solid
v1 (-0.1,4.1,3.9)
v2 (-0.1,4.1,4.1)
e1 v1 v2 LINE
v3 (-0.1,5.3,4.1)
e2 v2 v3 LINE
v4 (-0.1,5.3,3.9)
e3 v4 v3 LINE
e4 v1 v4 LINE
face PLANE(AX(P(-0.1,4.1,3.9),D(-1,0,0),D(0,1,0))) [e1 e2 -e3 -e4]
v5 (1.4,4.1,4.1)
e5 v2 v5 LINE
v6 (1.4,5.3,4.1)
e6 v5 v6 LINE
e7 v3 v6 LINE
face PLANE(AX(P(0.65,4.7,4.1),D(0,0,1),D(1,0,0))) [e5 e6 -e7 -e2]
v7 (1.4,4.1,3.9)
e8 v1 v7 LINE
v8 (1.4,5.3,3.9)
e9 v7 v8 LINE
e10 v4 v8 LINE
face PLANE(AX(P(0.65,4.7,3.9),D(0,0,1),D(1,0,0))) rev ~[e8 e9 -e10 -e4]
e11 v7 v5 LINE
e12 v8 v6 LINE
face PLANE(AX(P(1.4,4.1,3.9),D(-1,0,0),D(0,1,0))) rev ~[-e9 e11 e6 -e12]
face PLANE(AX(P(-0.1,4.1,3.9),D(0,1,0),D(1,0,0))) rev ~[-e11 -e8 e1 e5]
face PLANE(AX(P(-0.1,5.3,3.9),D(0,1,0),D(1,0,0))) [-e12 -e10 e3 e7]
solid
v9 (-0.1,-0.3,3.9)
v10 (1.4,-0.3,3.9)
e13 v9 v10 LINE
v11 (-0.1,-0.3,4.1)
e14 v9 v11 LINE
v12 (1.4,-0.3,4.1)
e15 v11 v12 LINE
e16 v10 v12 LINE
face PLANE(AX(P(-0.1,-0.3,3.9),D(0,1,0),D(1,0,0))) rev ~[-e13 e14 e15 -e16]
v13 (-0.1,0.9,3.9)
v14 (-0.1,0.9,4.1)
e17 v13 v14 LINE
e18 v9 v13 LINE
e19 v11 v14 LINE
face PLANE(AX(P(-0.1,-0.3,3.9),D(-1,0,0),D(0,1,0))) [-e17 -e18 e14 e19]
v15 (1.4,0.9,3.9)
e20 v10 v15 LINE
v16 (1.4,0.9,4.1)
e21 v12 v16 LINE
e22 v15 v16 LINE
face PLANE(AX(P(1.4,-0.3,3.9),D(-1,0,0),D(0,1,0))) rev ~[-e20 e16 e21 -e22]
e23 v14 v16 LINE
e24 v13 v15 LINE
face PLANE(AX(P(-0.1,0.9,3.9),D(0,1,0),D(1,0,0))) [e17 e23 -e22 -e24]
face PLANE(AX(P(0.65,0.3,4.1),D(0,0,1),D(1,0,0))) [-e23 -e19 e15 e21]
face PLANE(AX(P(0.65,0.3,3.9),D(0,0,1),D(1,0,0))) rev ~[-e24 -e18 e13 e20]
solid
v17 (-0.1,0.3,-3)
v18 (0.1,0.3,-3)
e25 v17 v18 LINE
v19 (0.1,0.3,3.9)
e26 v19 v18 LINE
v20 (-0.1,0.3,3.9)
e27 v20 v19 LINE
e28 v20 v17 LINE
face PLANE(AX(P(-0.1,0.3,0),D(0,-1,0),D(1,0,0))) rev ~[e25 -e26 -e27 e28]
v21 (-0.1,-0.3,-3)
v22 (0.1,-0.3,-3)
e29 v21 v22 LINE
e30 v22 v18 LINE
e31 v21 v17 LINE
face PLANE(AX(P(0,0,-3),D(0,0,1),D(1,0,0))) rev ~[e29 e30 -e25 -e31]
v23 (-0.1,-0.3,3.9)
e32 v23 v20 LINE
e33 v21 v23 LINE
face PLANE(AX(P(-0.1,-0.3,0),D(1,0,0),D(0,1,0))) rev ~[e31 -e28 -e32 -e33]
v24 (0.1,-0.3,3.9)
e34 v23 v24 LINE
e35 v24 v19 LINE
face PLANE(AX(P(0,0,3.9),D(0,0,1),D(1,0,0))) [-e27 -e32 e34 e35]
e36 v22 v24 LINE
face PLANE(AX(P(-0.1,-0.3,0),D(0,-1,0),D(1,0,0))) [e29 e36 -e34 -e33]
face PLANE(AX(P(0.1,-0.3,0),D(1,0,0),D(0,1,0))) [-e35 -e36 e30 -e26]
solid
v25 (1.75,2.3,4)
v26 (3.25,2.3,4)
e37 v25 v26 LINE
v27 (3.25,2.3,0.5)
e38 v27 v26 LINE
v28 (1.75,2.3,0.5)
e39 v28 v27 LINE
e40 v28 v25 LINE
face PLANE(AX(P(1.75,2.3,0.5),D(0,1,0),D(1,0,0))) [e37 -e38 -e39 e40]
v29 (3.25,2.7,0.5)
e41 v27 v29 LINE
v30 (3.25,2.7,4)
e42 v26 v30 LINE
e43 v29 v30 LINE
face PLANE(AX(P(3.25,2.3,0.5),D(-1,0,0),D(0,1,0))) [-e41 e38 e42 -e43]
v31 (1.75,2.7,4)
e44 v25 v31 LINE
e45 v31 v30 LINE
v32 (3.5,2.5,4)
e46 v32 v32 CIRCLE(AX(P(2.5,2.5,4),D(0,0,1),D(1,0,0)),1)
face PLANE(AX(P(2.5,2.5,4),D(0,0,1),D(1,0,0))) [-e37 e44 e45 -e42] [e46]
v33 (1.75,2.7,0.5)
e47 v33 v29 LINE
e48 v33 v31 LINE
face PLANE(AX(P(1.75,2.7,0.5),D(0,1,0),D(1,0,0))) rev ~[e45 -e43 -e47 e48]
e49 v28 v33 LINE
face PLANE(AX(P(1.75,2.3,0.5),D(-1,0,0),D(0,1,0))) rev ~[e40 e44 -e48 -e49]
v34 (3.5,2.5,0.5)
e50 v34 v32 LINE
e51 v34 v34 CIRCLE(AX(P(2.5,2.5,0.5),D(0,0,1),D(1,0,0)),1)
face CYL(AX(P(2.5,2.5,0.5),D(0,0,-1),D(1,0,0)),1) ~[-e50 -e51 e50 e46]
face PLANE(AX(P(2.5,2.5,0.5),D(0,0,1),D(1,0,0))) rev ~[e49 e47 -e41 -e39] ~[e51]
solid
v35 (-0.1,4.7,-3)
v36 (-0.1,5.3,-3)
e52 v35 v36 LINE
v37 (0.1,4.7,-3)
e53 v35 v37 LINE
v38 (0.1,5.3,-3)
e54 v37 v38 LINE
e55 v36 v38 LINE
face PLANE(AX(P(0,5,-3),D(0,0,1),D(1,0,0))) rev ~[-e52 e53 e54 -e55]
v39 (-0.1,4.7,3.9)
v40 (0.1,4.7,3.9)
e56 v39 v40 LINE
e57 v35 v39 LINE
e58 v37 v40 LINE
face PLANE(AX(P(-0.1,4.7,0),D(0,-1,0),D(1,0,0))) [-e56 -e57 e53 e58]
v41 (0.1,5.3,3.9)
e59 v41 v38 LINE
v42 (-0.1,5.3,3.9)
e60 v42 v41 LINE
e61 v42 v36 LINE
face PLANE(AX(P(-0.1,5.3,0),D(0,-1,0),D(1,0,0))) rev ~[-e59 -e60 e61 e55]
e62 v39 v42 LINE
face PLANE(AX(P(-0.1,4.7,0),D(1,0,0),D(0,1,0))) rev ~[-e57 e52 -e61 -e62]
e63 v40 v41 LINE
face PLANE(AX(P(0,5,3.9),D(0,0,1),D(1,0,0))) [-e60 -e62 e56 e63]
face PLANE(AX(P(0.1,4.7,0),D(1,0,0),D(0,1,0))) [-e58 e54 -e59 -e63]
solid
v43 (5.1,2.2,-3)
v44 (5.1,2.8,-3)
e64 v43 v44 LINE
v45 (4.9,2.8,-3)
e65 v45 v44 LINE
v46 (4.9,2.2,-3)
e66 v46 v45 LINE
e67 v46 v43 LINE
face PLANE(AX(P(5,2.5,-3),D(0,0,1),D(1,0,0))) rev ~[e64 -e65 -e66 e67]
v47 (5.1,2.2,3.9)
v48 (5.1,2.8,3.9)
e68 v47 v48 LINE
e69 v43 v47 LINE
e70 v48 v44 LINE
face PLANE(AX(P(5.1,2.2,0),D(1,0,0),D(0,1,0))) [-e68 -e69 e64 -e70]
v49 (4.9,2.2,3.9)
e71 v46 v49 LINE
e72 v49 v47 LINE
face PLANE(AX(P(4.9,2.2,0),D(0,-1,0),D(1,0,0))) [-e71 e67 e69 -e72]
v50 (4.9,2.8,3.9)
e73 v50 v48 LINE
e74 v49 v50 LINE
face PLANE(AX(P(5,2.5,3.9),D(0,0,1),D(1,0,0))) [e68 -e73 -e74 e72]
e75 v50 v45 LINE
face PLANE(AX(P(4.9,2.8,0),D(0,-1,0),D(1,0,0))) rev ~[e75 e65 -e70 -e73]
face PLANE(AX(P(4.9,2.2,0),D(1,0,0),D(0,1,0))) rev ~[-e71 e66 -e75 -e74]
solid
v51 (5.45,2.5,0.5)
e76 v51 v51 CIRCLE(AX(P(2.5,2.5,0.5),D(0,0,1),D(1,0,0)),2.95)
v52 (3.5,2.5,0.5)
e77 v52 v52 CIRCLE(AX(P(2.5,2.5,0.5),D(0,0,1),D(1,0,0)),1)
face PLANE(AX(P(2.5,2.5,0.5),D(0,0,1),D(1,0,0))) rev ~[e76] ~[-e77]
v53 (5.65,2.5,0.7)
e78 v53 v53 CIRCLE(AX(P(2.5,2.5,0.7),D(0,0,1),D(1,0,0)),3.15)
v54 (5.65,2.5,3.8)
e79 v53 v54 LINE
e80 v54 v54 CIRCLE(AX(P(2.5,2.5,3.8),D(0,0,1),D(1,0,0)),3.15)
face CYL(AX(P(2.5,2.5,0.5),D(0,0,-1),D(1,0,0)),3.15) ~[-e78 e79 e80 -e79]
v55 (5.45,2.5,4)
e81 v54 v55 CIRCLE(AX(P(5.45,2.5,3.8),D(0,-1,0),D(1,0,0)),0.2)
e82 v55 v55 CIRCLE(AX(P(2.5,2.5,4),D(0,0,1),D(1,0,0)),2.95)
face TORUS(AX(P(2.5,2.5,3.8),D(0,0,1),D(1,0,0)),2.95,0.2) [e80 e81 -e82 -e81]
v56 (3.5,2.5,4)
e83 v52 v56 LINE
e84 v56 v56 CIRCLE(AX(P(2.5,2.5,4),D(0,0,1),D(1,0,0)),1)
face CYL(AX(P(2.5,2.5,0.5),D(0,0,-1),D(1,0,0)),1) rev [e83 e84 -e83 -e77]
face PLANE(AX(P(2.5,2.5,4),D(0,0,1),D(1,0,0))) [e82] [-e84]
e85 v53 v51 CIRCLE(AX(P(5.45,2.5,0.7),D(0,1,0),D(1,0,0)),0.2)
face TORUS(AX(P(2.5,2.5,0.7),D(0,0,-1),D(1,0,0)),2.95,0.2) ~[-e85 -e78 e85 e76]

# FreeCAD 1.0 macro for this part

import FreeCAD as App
import Part
import Sketcher

V = App.Vector
Q = App.Units.Quantity


def edges_at(feature, points):
    """Names of the edges that pass closest to the given points."""
    edges = feature.Shape.Edges
    near = lambda p: min(range(len(edges)), key=lambda i: edges[i].distToShape(Part.Vertex(*p))[0])
    return sorted({f"Edge{near(p) + 1}" for p in points})


def add_polygon(sketch, points):
    """Adds a closed chain of lines whose ends are joined by coincident constraints."""
    first, n = sketch.GeometryCount, len(points)
    for a, b in zip(points, points[1:] + points[:1]):
        sketch.addGeometry(Part.LineSegment(App.Vector(*a, 0), App.Vector(*b, 0)), False)
    for i in range(n):
        sketch.addConstraint(Sketcher.Constraint("Coincident", first + i, 2, first + (i + 1) % n, 1))

doc = App.newDocument("Part")
body = doc.addObject("PartDesign::Body", "Body")
body.AllowCompound = True

# Sketch on XY plane
sketch1 = body.newObject("Sketcher::SketchObject", "Sketch")
sketch1.AttachmentSupport = (doc.getObject("XY_Plane"), [""])
sketch1.MapMode = "FlatFace"
add_polygon(sketch1, [(-0.1, 5.3), (-0.1, 4.7), (0.1, 4.7), (0.1, 5.3)])  # lines 0-3
add_polygon(sketch1, [(4.9, 2.8), (4.9, 2.2), (5.1, 2.2), (5.1, 2.8)])  # lines 4-7
add_polygon(sketch1, [(-0.1, 0.3), (-0.1, -0.3), (0.1, -0.3), (0.1, 0.3)])  # lines 8-11
sketch1.addConstraint(Sketcher.Constraint("Vertical", 0))
sketch1.addConstraint(Sketcher.Constraint("Horizontal", 1))
sketch1.addConstraint(Sketcher.Constraint("Vertical", 2))
sketch1.addConstraint(Sketcher.Constraint("Horizontal", 3))
sketch1.addConstraint(Sketcher.Constraint("Vertical", 4))
sketch1.addConstraint(Sketcher.Constraint("Horizontal", 5))
sketch1.addConstraint(Sketcher.Constraint("Vertical", 6))
sketch1.addConstraint(Sketcher.Constraint("Horizontal", 7))
sketch1.addConstraint(Sketcher.Constraint("Vertical", 8))
sketch1.addConstraint(Sketcher.Constraint("Horizontal", 9))
sketch1.addConstraint(Sketcher.Constraint("Vertical", 10))
sketch1.addConstraint(Sketcher.Constraint("Horizontal", 11))
sketch1.addConstraint(Sketcher.Constraint("Symmetric", 8, 2, 10, 2, -1, 1))
sketch1.addConstraint(Sketcher.Constraint("Vertical", 3, 2, 8, 2))
sketch1.addConstraint(Sketcher.Constraint("Vertical", 2, 2, 9, 2))
sketch1.addConstraint(Sketcher.Constraint("Equal", 3, 5))
sketch1.addConstraint(Sketcher.Constraint("Equal", 2, 4))
sketch1.addConstraint(Sketcher.Constraint("Equal", 6, 8))
sketch1.addConstraint(Sketcher.Constraint("DistanceX", 1, 1, 1, 2, Q("0.2 mm")))
sketch1.addConstraint(Sketcher.Constraint("DistanceY", 0, 2, 0, 1, Q("0.6 mm")))
sketch1.addConstraint(Sketcher.Constraint("DistanceX", 0, 2, 4, 2, Q("5 mm")))
sketch1.addConstraint(Sketcher.Constraint("DistanceY", 8, 2, 0, 2, Q("5 mm")))
sketch1.addConstraint(Sketcher.Constraint("DistanceY", -1, 1, 4, 2, Q("2.2 mm")))
pad1 = body.newObject("PartDesign::Pad", "Pad")
pad1.Profile = sketch1
pad1.Type = "TwoLengths"
pad1.Length = 3.9
pad1.Length2 = 3
body2 = doc.addObject("PartDesign::Body", "Body001")

# Sketch on XY plane
sketch2 = body2.newObject("Sketcher::SketchObject", "Sketch001")
sketch2.AttachmentSupport = (doc.getObject("XY_Plane001"), [""])
sketch2.MapMode = "FlatFace"
sketch2.AttachmentOffset = App.Placement(V(0, 0, 0.5), App.Rotation())
sketch2.addGeometry(Part.Circle(V(2.5, 2.5, 0), V(0, 0, 1), 1), False)  # 0
add_polygon(sketch2, [(3.25, 2.3), (1.75, 2.3), (1.75, 2.7), (3.25, 2.7)])  # lines 1-4
sketch2.addConstraint(Sketcher.Constraint("Horizontal", 1))
sketch2.addConstraint(Sketcher.Constraint("Vertical", 2))
sketch2.addConstraint(Sketcher.Constraint("Horizontal", 3))
sketch2.addConstraint(Sketcher.Constraint("Vertical", 4))
sketch2.addConstraint(Sketcher.Constraint("Diameter", 0, Q("2 mm")))
sketch2.addConstraint(Sketcher.Constraint("DistanceX", 1, 2, 1, 1, Q("1.5 mm")))
sketch2.addConstraint(Sketcher.Constraint("DistanceY", 2, 1, 2, 2, Q("0.4 mm")))
sketch2.addConstraint(Sketcher.Constraint("DistanceX", -1, 1, 0, 3, Q("2.5 mm")))
sketch2.addConstraint(Sketcher.Constraint("DistanceY", -1, 1, 0, 3, Q("2.5 mm")))
sketch2.addConstraint(Sketcher.Constraint("DistanceY", -1, 1, 1, 2, Q("2.3 mm")))
sketch2.addConstraint(Sketcher.Constraint("DistanceX", -1, 1, 1, 2, Q("1.75 mm")))
pad2 = body2.newObject("PartDesign::Pad", "Pad001")
pad2.Profile = sketch2
pad2.Length = 3.5
body3 = doc.addObject("PartDesign::Body", "Body002")

# Sketch on XY plane
sketch3 = body3.newObject("Sketcher::SketchObject", "Sketch002")
sketch3.AttachmentSupport = (doc.getObject("XY_Plane002"), [""])
sketch3.MapMode = "FlatFace"
sketch3.AttachmentOffset = App.Placement(V(0, 0, 0.5), App.Rotation())
sketch3.addGeometry(Part.Circle(V(2.5, 2.5, 0), V(0, 0, 1), 3.1), False)
sketch3.addGeometry(Part.Circle(V(2.5, 2.5, 0), V(0, 0, 1), 1), False)
sketch3.addConstraint(Sketcher.Constraint("Coincident", 1, 3, 0, 3))
sketch3.addConstraint(Sketcher.Constraint("Diameter", 1, Q("2 mm")))
sketch3.addConstraint(Sketcher.Constraint("Diameter", 0, Q("6.3 mm")))
sketch3.addConstraint(Sketcher.Constraint("DistanceX", -1, 1, 0, 3, Q("2.5 mm")))
sketch3.addConstraint(Sketcher.Constraint("DistanceY", -1, 1, 0, 3, Q("2.5 mm")))
pad3 = body3.newObject("PartDesign::Pad", "Pad002")
pad3.Profile = sketch3
pad3.Length = 3.5
doc.recompute()

fillet = body3.newObject("PartDesign::Fillet", "Fillet")
fillet.Base = (pad3, edges_at(pad3, [(-0.65, 2.5, 0.5), (-0.65, 2.5, 4)]))
fillet.Radius = 0.2
body4 = doc.addObject("PartDesign::Body", "Body003")
body4.AllowCompound = True

# Sketch on XY plane
sketch4 = body4.newObject("Sketcher::SketchObject", "Sketch003")
sketch4.AttachmentSupport = (doc.getObject("XY_Plane003"), [""])
sketch4.MapMode = "FlatFace"
sketch4.AttachmentOffset = App.Placement(V(0, 0, 3.9), App.Rotation())
add_polygon(sketch4, [(-0.1, 5.3), (-0.1, 4.1), (1.4, 4.1), (1.4, 5.3)])  # lines 0-3
add_polygon(sketch4, [(-0.1, 0.9), (-0.1, -0.3), (1.4, -0.3), (1.4, 0.9)])  # lines 4-7
sketch4.addConstraint(Sketcher.Constraint("Vertical", 0))
sketch4.addConstraint(Sketcher.Constraint("Horizontal", 1))
sketch4.addConstraint(Sketcher.Constraint("Vertical", 2))
sketch4.addConstraint(Sketcher.Constraint("Horizontal", 3))
sketch4.addConstraint(Sketcher.Constraint("Vertical", 4))
sketch4.addConstraint(Sketcher.Constraint("Horizontal", 5))
sketch4.addConstraint(Sketcher.Constraint("Vertical", 6))
sketch4.addConstraint(Sketcher.Constraint("Horizontal", 7))
sketch4.addConstraint(Sketcher.Constraint("Vertical", 3, 2, 4, 2))
sketch4.addConstraint(Sketcher.Constraint("Vertical", 2, 2, 5, 2))
sketch4.addConstraint(Sketcher.Constraint("Equal", 2, 4))
sketch4.addConstraint(Sketcher.Constraint("DistanceX", 1, 1, 1, 2, Q("1.5 mm")))
sketch4.addConstraint(Sketcher.Constraint("DistanceY", 0, 2, 0, 1, Q("1.2 mm")))
sketch4.addConstraint(Sketcher.Constraint("DistanceX", 0, 2, -1, 1, Q("0.1 mm")))
sketch4.addConstraint(Sketcher.Constraint("DistanceY", -1, 1, 0, 2, Q("4.1 mm")))
sketch4.addConstraint(Sketcher.Constraint("DistanceY", 4, 2, -1, 1, Q("0.3 mm")))
pad4 = body4.newObject("PartDesign::Pad", "Pad003")
pad4.Profile = sketch4
pad4.Length = 0.2

doc.recompute()
